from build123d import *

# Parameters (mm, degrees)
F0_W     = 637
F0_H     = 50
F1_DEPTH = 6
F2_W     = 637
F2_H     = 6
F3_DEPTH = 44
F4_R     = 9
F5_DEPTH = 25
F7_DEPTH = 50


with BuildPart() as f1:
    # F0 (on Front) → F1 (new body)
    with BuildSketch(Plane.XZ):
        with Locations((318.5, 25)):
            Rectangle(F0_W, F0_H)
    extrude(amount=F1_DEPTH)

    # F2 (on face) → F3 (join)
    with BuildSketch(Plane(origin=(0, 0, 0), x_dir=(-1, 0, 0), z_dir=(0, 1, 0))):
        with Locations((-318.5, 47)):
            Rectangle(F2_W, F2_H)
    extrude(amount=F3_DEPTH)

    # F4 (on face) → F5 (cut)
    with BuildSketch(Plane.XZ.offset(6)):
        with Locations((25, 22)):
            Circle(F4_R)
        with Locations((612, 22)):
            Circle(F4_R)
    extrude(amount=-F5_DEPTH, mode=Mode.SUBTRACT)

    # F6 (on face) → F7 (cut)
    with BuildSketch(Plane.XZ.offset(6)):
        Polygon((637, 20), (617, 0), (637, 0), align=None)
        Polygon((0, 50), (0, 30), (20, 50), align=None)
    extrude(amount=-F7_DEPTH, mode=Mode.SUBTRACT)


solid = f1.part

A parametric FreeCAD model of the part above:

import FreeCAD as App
import Part
import Sketcher
from FreeCAD import Vector


def add_polygon(sketch, points):
    """Adds a closed chain of lines whose ends are joined by coincident constraints."""
    first, n = sketch.GeometryCount, len(points)
    for a, b in zip(points, points[1:] + points[:1]):
        sketch.addGeometry(Part.LineSegment(App.Vector(*a, 0), App.Vector(*b, 0)), False)
    for i in range(n):
        sketch.addConstraint(Sketcher.Constraint("Coincident", first + i, 2, first + (i + 1) % n, 1))

doc = App.newDocument("Part")
body = doc.addObject("PartDesign::Body", "Body")

# Sketch on XZ plane
sketch1 = doc.addObject("Sketcher::SketchObject", "Sketch")
body.addObject(sketch1)
sketch1.AttachmentSupport = (doc.XZ_Plane, [""])
sketch1.MapMode = "FlatFace"
add_polygon(sketch1, [(0, 50), (0, 0), (637, 0), (637, 50)])  # lines 0-3
sketch1.addConstraint(Sketcher.Constraint("Vertical", 0))
sketch1.addConstraint(Sketcher.Constraint("Horizontal", 1))
sketch1.addConstraint(Sketcher.Constraint("Vertical", 2))
sketch1.addConstraint(Sketcher.Constraint("Horizontal", 3))
sketch1.addConstraint(Sketcher.Constraint("Coincident", 0, 2, -1, 1))
sketch1.addConstraint(Sketcher.Constraint("DistanceX", 1, 1, 1, 2, 637.0))
sketch1.addConstraint(Sketcher.Constraint("DistanceY", 0, 2, 0, 1, 50.0))
pad1 = doc.addObject("PartDesign::Pad", "Pad")
body.addObject(pad1)
pad1.Profile = sketch1
pad1.Length = 6

# Sketch on XZ plane
sketch2 = doc.addObject("Sketcher::SketchObject", "Sketch001")
body.addObject(sketch2)
sketch2.AttachmentSupport = (doc.XZ_Plane, [""])
sketch2.MapMode = "FlatFace"
add_polygon(sketch2, [(637, 50), (637, 44), (0, 44), (0, 50)])  # lines 0-3
sketch2.addConstraint(Sketcher.Constraint("Vertical", 0))
sketch2.addConstraint(Sketcher.Constraint("Horizontal", 1))
sketch2.addConstraint(Sketcher.Constraint("Vertical", 2))
sketch2.addConstraint(Sketcher.Constraint("Horizontal", 3))
sketch2.addConstraint(Sketcher.Constraint("PointOnObject", 1, 2, -2))
sketch2.addConstraint(Sketcher.Constraint("DistanceX", 1, 2, 1, 1, 637.0))
sketch2.addConstraint(Sketcher.Constraint("DistanceY", 0, 2, 0, 1, 6.0))
sketch2.addConstraint(Sketcher.Constraint("DistanceY", -1, 1, 0, 2, 44.0))
pad2 = doc.addObject("PartDesign::Pad", "Pad001")
body.addObject(pad2)
pad2.Profile = sketch2
pad2.Length = 44
pad2.Reversed = True

# Sketch on XZ plane
sketch3 = doc.addObject("Sketcher::SketchObject", "Sketch002")
body.addObject(sketch3)
sketch3.AttachmentSupport = (doc.XZ_Plane, [""])
sketch3.MapMode = "FlatFace"
sketch3.AttachmentOffset = App.Placement(Vector(0, 0, 6), App.Rotation())
sketch3.addGeometry(Part.Circle(Vector(25, 22, 0), Vector(0, 0, 1), 9), False)
sketch3.addGeometry(Part.Circle(Vector(612, 22, 0), Vector(0, 0, 1), 9), False)
sketch3.addConstraint(Sketcher.Constraint("Equal", 0, 1))
sketch3.addConstraint(Sketcher.Constraint("Horizontal", 0, 3, 1, 3))
sketch3.addConstraint(Sketcher.Constraint("Diameter", 0, 18.0))
sketch3.addConstraint(Sketcher.Constraint("DistanceX", -1, 1, 0, 3, 25.0))
sketch3.addConstraint(Sketcher.Constraint("DistanceY", -1, 1, 0, 3, 22.0))
sketch3.addConstraint(Sketcher.Constraint("DistanceX", -1, 1, 1, 3, 612.0))
pocket1 = doc.addObject("PartDesign::Pocket", "Pocket")
body.addObject(pocket1)
pocket1.Profile = sketch3
pocket1.Length = 25

# Sketch on XZ plane
sketch4 = doc.addObject("Sketcher::SketchObject", "Sketch003")
body.addObject(sketch4)
sketch4.AttachmentSupport = (doc.XZ_Plane, [""])
sketch4.MapMode = "FlatFace"
sketch4.AttachmentOffset = App.Placement(Vector(0, 0, 6), App.Rotation())
add_polygon(sketch4, [(637, 20), (617, 0), (637, 0)])  # lines 0-2
add_polygon(sketch4, [(0, 50), (0, 30), (20, 50)])  # lines 3-5
sketch4.addConstraint(Sketcher.Constraint("Horizontal", 1))
sketch4.addConstraint(Sketcher.Constraint("Vertical", 2))
sketch4.addConstraint(Sketcher.Constraint("Vertical", 3))
sketch4.addConstraint(Sketcher.Constraint("Horizontal", 5))
sketch4.addConstraint(Sketcher.Constraint("PointOnObject", 0, 2, -1))
sketch4.addConstraint(Sketcher.Constraint("PointOnObject", 3, 2, -2))
sketch4.addConstraint(Sketcher.Constraint("Parallel", 0, 4))
sketch4.addConstraint(Sketcher.Constraint("Equal", 1, 5))
sketch4.addConstraint(Sketcher.Constraint("Equal", 5, 2))
sketch4.addConstraint(Sketcher.Constraint("DistanceX", 1, 1, 1, 2, 20.0))
sketch4.addConstraint(Sketcher.Constraint("DistanceX", -1, 1, 0, 2, 617.0))
sketch4.addConstraint(Sketcher.Constraint("DistanceY", -1, 1, 3, 2, 30.0))
pocket2 = doc.addObject("PartDesign::Pocket", "Pocket001")
body.addObject(pocket2)
pocket2.Profile = sketch4
pocket2.Length = 50

doc.recompute()
